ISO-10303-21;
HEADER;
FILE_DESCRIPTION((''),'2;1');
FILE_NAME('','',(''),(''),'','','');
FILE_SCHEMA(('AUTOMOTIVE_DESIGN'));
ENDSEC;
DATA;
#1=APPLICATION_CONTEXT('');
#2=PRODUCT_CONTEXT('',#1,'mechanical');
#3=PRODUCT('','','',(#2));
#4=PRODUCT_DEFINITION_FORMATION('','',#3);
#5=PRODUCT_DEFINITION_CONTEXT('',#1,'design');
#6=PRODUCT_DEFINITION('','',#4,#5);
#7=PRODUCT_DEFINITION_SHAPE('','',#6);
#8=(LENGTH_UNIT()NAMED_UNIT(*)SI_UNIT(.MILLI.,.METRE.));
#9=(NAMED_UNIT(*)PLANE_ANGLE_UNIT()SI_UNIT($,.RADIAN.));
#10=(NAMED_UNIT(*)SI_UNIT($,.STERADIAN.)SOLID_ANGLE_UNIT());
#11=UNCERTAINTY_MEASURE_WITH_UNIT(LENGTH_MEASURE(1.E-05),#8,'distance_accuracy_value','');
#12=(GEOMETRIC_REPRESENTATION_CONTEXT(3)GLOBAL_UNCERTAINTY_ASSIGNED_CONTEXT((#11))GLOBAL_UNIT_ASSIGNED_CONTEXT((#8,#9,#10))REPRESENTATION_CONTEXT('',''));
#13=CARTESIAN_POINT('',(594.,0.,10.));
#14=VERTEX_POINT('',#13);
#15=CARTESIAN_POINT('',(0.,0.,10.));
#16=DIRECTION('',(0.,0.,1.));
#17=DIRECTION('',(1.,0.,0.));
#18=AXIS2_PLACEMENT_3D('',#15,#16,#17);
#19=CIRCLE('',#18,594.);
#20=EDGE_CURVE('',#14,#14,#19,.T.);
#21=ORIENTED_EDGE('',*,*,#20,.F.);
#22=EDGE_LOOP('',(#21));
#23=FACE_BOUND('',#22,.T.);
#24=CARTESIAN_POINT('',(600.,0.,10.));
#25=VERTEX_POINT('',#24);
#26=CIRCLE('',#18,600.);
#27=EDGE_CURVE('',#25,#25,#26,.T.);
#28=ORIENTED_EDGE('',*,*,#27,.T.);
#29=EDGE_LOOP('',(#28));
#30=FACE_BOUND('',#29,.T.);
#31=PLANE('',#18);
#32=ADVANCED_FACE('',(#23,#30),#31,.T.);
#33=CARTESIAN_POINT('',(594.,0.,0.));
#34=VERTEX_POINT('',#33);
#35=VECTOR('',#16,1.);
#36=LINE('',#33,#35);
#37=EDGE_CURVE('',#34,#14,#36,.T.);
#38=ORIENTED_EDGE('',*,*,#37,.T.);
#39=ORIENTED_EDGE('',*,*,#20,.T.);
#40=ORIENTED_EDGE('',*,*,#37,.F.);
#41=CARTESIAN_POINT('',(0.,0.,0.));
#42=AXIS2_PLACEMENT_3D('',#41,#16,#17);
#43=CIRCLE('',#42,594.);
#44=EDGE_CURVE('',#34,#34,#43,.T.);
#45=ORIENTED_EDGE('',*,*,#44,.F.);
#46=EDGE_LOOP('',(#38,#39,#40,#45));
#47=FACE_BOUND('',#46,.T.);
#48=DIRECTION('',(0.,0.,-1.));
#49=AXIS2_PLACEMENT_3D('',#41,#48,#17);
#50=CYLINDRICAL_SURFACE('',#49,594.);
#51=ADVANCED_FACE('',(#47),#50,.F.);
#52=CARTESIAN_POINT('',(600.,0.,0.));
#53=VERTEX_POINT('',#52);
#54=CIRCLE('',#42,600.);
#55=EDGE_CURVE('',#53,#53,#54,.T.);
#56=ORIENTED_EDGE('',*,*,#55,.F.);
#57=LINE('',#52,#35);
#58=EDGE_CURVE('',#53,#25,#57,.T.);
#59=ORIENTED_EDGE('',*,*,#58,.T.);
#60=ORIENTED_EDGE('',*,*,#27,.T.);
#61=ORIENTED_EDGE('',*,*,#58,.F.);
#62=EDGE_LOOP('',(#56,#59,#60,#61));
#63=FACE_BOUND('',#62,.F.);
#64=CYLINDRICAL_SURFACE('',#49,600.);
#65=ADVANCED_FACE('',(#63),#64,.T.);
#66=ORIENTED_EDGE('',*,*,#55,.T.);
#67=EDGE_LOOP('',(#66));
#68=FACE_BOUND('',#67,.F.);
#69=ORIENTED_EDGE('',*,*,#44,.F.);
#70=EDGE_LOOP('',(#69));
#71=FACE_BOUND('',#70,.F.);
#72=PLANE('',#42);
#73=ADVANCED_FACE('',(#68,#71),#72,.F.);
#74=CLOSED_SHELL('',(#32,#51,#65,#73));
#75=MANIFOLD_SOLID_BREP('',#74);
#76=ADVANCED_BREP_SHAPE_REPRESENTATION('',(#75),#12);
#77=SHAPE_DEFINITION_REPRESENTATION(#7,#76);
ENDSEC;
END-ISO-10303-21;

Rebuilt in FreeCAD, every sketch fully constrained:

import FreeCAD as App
import Part
import Sketcher

V = App.Vector

doc = App.newDocument("Part")
body = doc.addObject("PartDesign::Body", "Body")

sketch1 = doc.addObject("Sketcher::SketchObject", "Sketch")
body.addObject(sketch1)
sketch1.AttachmentSupport = (doc.XY_Plane, [""])
sketch1.MapMode = "FlatFace"
sketch1.addGeometry([
    Part.Circle(V(0, 0, 0), V(0, 0, 1), 600),
    Part.Circle(V(0, 0, 0), V(0, 0, 1), 594),
], False)
sketch1.addConstraint([
    Sketcher.Constraint("Coincident", 0, 3, -1, 1),
    Sketcher.Constraint("Coincident", 1, 3, -1, 1),
    Sketcher.Constraint("Diameter", 0, 1200.0),
    Sketcher.Constraint("Diameter", 1, 1188.0),
])
pad1 = doc.addObject("PartDesign::Pad", "Pad")
body.addObject(pad1)
pad1.Profile = sketch1
pad1.Length = 10

doc.recompute()
